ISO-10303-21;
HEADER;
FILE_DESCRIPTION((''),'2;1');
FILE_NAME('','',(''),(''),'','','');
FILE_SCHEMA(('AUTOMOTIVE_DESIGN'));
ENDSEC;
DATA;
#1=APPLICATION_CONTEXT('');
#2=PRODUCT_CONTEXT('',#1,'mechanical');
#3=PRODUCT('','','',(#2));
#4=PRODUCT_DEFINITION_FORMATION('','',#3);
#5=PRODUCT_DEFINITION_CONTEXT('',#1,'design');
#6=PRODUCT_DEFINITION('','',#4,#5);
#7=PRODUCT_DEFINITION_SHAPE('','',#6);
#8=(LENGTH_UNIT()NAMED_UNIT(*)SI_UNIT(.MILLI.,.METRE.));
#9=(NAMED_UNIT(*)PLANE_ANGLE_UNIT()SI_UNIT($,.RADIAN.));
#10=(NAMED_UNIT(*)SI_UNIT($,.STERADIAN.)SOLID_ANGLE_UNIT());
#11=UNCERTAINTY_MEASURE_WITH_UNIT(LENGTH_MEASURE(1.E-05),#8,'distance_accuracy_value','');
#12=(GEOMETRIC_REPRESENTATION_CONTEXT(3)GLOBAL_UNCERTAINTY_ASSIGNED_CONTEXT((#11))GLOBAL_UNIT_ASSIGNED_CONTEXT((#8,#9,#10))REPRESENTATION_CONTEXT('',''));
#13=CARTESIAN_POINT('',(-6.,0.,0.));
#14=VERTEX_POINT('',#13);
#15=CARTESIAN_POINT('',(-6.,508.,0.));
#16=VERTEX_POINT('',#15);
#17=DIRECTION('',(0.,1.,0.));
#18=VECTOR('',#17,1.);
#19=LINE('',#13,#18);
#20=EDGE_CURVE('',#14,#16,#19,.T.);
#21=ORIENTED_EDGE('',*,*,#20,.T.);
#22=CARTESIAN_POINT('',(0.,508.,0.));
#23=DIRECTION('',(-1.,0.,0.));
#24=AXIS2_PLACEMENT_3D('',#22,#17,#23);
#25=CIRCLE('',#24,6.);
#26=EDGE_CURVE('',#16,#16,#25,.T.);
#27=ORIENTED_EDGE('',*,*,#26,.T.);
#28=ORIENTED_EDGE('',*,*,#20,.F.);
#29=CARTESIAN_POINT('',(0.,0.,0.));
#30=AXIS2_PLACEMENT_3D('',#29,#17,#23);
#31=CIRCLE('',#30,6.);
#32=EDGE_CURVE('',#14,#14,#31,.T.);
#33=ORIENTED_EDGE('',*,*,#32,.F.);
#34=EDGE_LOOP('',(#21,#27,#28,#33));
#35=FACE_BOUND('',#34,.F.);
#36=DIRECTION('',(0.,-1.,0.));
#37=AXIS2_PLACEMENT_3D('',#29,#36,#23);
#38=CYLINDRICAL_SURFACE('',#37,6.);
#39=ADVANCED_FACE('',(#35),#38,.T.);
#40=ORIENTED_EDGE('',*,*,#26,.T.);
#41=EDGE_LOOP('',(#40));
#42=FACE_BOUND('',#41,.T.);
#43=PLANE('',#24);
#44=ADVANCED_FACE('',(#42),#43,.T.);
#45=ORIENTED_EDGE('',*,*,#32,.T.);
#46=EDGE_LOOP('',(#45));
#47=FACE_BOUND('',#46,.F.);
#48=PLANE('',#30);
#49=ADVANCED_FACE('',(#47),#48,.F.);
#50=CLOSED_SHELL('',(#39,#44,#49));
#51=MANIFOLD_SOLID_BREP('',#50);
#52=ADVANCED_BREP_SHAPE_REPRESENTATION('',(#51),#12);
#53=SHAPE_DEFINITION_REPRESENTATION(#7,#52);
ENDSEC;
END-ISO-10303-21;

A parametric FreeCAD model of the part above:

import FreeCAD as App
import Part
import Sketcher

V = App.Vector
Q = App.Units.Quantity

doc = App.newDocument("Part")
body = doc.addObject("PartDesign::Body", "Body")

sketch1 = body.newObject("Sketcher::SketchObject", "Sketch")
sketch1.AttachmentSupport = (doc.getObject("XZ_Plane"), [""])
sketch1.MapMode = "FlatFace"
sketch1.addGeometry(Part.Circle(V(0, 0, 0), V(0, 0, 1), 6), False)
sketch1.addConstraint([
    Sketcher.Constraint("Coincident", 0, 3, -1, 1),
    Sketcher.Constraint("Diameter", 0, Q("12 mm")),
])
pad1 = body.newObject("PartDesign::Pad", "Pad")
pad1.Profile = sketch1
pad1.Length = 508
pad1.Reversed = True

doc.recompute()
